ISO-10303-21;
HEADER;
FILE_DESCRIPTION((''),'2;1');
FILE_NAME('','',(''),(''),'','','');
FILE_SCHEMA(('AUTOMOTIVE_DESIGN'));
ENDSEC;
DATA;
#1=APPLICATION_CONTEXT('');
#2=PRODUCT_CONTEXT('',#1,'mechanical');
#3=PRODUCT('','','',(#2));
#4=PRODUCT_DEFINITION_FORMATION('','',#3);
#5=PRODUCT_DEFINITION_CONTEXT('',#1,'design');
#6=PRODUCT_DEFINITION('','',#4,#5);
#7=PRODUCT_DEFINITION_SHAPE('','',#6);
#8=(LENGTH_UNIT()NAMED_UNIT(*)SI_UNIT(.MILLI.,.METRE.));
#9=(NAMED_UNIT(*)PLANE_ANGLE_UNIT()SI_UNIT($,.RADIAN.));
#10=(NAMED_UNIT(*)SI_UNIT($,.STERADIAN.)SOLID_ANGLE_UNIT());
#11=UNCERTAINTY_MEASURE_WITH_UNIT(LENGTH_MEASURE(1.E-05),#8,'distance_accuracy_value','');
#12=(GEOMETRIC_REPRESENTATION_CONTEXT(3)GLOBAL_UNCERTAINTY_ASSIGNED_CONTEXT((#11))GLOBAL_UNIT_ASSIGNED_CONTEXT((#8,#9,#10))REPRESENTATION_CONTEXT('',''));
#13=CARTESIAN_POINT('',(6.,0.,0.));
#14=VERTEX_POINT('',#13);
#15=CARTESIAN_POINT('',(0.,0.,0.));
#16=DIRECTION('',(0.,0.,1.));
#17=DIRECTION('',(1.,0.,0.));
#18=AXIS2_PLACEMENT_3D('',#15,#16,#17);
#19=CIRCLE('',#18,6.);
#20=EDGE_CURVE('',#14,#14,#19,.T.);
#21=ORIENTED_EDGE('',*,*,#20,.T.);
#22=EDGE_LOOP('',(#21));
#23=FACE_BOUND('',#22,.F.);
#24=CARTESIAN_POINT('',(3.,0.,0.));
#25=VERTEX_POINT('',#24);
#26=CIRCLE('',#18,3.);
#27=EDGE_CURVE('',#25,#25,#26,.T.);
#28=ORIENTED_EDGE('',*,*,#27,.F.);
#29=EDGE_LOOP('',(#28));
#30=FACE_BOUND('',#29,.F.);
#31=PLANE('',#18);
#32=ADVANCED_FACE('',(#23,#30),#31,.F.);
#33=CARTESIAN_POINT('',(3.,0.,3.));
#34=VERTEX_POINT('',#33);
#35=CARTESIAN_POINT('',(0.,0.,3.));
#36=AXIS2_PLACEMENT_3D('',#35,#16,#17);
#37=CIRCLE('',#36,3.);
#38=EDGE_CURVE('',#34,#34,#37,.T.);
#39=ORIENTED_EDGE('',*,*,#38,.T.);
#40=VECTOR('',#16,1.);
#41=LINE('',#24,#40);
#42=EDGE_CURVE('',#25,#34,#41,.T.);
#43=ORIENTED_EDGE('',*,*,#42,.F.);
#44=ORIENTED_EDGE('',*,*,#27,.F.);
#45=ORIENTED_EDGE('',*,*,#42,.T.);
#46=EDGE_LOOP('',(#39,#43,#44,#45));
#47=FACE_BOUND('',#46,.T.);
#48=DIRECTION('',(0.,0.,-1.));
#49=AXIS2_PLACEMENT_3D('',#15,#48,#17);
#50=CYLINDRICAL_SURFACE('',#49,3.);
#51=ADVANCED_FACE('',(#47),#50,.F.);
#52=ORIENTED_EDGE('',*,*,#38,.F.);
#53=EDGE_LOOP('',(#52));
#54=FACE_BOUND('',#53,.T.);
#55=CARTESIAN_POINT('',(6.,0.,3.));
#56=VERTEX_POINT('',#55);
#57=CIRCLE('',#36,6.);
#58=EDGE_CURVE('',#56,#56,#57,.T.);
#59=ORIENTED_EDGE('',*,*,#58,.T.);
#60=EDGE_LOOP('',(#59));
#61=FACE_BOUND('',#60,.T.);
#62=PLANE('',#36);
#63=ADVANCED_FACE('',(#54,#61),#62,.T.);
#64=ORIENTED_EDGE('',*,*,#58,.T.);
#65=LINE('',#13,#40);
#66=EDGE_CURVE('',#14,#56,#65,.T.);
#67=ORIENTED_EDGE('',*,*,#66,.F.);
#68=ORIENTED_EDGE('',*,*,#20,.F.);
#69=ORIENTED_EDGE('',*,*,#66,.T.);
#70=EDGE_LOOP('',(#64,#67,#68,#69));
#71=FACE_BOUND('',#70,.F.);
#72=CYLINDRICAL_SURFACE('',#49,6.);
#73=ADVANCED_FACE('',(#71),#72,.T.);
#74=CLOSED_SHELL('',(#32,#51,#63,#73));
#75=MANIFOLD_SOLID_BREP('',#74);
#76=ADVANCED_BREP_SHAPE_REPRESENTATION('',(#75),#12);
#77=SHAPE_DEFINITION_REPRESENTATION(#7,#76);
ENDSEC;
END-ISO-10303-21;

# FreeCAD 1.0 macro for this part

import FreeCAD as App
import Part
import Sketcher

V = App.Vector
Q = App.Units.Quantity

doc = App.newDocument("Part")
body = doc.addObject("PartDesign::Body", "Body")

# Sketch on XY plane
sketch1 = body.newObject("Sketcher::SketchObject", "Sketch")
sketch1.AttachmentSupport = (doc.getObject("XY_Plane"), [""])
sketch1.MapMode = "FlatFace"
sketch1.addGeometry(Part.Circle(V(0, 0, 0), V(0, 0, 1), 6), False)
sketch1.addGeometry(Part.Circle(V(0, 0, 0), V(0, 0, 1), 3), False)
sketch1.addConstraint(Sketcher.Constraint("Coincident", 0, 3, -1, 1))
sketch1.addConstraint(Sketcher.Constraint("Coincident", 1, 3, -1, 1))
sketch1.addConstraint(Sketcher.Constraint("Diameter", 0, Q("12 mm")))
sketch1.addConstraint(Sketcher.Constraint("Diameter", 1, Q("6 mm")))
pad1 = body.newObject("PartDesign::Pad", "Pad")
pad1.Profile = sketch1
pad1.Length = 3

doc.recompute()
